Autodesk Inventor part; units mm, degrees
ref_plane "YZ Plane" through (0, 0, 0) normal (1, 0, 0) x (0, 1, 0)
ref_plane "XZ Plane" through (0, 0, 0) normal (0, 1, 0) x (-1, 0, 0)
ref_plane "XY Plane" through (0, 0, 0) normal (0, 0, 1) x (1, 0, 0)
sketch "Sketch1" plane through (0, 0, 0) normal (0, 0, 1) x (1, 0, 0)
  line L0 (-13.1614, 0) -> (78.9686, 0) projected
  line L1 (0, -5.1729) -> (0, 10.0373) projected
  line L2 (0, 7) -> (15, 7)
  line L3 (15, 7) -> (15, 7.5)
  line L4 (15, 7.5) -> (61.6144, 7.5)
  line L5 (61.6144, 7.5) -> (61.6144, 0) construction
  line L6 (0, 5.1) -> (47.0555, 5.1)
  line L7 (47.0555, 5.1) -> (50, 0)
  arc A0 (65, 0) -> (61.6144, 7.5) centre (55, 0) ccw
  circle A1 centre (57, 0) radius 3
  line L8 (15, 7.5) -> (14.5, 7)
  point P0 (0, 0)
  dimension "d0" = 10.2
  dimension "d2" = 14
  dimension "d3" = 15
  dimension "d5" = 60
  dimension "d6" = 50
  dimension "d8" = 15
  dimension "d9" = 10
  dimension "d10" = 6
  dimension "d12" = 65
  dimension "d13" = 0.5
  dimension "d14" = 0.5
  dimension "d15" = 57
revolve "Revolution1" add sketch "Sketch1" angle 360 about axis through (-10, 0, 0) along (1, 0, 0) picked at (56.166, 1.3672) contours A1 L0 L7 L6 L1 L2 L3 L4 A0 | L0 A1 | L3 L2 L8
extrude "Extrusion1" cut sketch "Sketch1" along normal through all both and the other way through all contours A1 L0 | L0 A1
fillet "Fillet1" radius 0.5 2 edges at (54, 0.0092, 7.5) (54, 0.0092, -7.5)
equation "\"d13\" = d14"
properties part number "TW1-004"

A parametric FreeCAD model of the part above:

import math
import FreeCAD as App
import Part
import Sketcher
from FreeCAD import Vector
Q = App.Units.Quantity


def edges_at(feature, points):
    """Names of the edges that pass closest to the given points."""
    edges = feature.Shape.Edges
    near = lambda p: min(range(len(edges)), key=lambda i: edges[i].distToShape(Part.Vertex(*p))[0])
    return sorted({f"Edge{near(p) + 1}" for p in points})

doc = App.newDocument("Part")
body = doc.addObject("PartDesign::Body", "Body")

sketch1 = body.newObject("Sketcher::SketchObject", "Sketch")
sketch1.AttachmentSupport = (doc.getObject("XY_Plane"), [""])
sketch1.MapMode = "FlatFace"
sketch1.addGeometry([
    Part.LineSegment(Vector(50, 0, 0), Vector(65, 0, 0)),
    Part.ArcOfCircle(Part.Circle(Vector(55, 0, 0), Vector(0, 0, 1), 10), math.radians(0), math.radians(49)),
    Part.LineSegment(Vector(61.6, 7.5, 0), Vector(15, 7.5, 0)),
    Part.LineSegment(Vector(15, 7.5, 0), Vector(14.5, 7, 0)),
    Part.LineSegment(Vector(14.5, 7, 0), Vector(0, 7, 0)),
    Part.LineSegment(Vector(0, 7, 0), Vector(0, 5.1, 0)),
    Part.LineSegment(Vector(0, 5.1, 0), Vector(47.1, 5.1, 0)),
    Part.LineSegment(Vector(47.1, 5.1, 0), Vector(50, 0, 0)),
], False)
sketch1.addConstraint([
    Sketcher.Constraint("Coincident", 0, 2, 1, 1),
    Sketcher.Constraint("Coincident", 1, 2, 2, 1),
    Sketcher.Constraint("Coincident", 2, 2, 3, 1),
    Sketcher.Constraint("Coincident", 3, 2, 4, 1),
    Sketcher.Constraint("Coincident", 4, 2, 5, 1),
    Sketcher.Constraint("Coincident", 5, 2, 6, 1),
    Sketcher.Constraint("Coincident", 6, 2, 7, 1),
    Sketcher.Constraint("Coincident", 7, 2, 0, 1),
    Sketcher.Constraint("Horizontal", 0),
    Sketcher.Constraint("Horizontal", 2),
    Sketcher.Constraint("Horizontal", 4),
    Sketcher.Constraint("Vertical", 5),
    Sketcher.Constraint("Horizontal", 6),
    Sketcher.Constraint("PointOnObject", 1, 3, -1),
    Sketcher.Constraint("PointOnObject", 0, 2, -1),
    Sketcher.Constraint("PointOnObject", 4, 2, -2),
    Sketcher.Constraint("Radius", 1, Q("10 mm")),
    Sketcher.Constraint("DistanceX", 0, 1, 0, 2, Q("15 mm")),
    Sketcher.Constraint("Angle", 7, Q("-60 deg")),
    Sketcher.Constraint("DistanceX", -1, 1, 0, 2, Q("65 mm")),
    Sketcher.Constraint("DistanceX", -1, 1, 2, 2, Q("15 mm")),
    Sketcher.Constraint("DistanceX", 3, 2, 2, 2, Q("0.5 mm")),
    Sketcher.Constraint("DistanceY", 3, 2, 2, 2, Q("0.5 mm")),
    Sketcher.Constraint("DistanceY", 5, 2, 5, 1, Q("1.9 mm")),
    Sketcher.Constraint("DistanceY", -1, 1, 3, 2, Q("7 mm")),
])
revolution = body.newObject("PartDesign::Revolution", "Revolution")
revolution.Profile = sketch1
revolution.ReferenceAxis = (sketch1, ["H_Axis"])
revolution.Angle = 360

sketch2 = body.newObject("Sketcher::SketchObject", "Sketch001")
sketch2.AttachmentSupport = (doc.getObject("XY_Plane"), [""])
sketch2.MapMode = "FlatFace"
sketch2.addGeometry(Part.Circle(Vector(57, 0, 0), Vector(0, 0, 1), 3), False)
sketch2.addConstraint([
    Sketcher.Constraint("PointOnObject", 0, 3, -1),
    Sketcher.Constraint("Diameter", 0, Q("6 mm")),
    Sketcher.Constraint("DistanceX", -1, 1, 0, 3, Q("57 mm")),
])
pocket1 = body.newObject("PartDesign::Pocket", "Pocket")
pocket1.Profile = sketch2
pocket1.Type = "ThroughAll"
pocket1.Midplane = True
doc.recompute()

fillet = body.newObject("PartDesign::Fillet", "Fillet")
fillet.Base = (pocket1, edges_at(pocket1, [(54, 0.009, 7.5), (54, 0.009, -7.5)]))
fillet.Radius = 0.5

doc.recompute()
